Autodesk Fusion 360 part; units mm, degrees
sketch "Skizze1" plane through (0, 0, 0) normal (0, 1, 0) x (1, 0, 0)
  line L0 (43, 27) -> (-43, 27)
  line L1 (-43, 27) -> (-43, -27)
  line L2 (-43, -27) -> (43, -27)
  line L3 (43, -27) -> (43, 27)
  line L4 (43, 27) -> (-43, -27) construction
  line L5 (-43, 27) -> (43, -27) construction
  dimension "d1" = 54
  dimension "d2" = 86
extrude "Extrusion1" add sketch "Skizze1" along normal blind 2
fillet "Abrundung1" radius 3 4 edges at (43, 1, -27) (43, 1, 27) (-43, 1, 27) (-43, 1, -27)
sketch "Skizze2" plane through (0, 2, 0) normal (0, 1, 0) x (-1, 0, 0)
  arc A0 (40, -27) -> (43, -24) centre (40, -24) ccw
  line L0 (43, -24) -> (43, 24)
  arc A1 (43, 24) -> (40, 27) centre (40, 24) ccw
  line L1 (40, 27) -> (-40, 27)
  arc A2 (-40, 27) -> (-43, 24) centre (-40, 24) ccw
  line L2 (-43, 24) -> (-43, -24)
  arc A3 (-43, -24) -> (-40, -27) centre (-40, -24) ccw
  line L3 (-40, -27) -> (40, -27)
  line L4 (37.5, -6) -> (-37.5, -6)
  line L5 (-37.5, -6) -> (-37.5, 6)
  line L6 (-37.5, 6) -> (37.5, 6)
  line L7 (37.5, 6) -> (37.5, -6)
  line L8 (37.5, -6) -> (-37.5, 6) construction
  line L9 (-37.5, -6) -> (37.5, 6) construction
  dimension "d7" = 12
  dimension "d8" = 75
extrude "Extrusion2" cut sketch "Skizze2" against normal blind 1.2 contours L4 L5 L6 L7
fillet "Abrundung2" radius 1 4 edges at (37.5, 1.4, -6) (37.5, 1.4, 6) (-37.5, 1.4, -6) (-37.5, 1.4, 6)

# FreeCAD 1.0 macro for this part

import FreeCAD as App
import Part
import Sketcher
from FreeCAD import Vector
Q = App.Units.Quantity


def edges_at(feature, points):
    """Names of the edges that pass closest to the given points."""
    edges = feature.Shape.Edges
    near = lambda p: min(range(len(edges)), key=lambda i: edges[i].distToShape(Part.Vertex(*p))[0])
    return sorted({f"Edge{near(p) + 1}" for p in points})


def add_polygon(sketch, points):
    """Adds a closed chain of lines whose ends are joined by coincident constraints."""
    first, n = sketch.GeometryCount, len(points)
    for a, b in zip(points, points[1:] + points[:1]):
        sketch.addGeometry(Part.LineSegment(App.Vector(*a, 0), App.Vector(*b, 0)), False)
    for i in range(n):
        sketch.addConstraint(Sketcher.Constraint("Coincident", first + i, 2, first + (i + 1) % n, 1))

doc = App.newDocument("Part")
body = doc.addObject("PartDesign::Body", "Body")

# Sketch on XZ plane
sketch1 = doc.addObject("Sketcher::SketchObject", "Sketch")
body.addObject(sketch1)
sketch1.AttachmentSupport = (doc.XZ_Plane, [""])
sketch1.MapMode = "FlatFace"
add_polygon(sketch1, [(43, 27), (43, -27), (-43, -27), (-43, 27)])  # lines 0-3
sketch1.addConstraint([
    Sketcher.Constraint("Vertical", 0),
    Sketcher.Constraint("Horizontal", 1),
    Sketcher.Constraint("Vertical", 2),
    Sketcher.Constraint("Horizontal", 3),
    Sketcher.Constraint("Symmetric", 0, 2, 2, 2, -1, 1),
    Sketcher.Constraint("DistanceX", 1, 2, 1, 1, Q("86 mm")),
    Sketcher.Constraint("DistanceY", 0, 2, 0, 1, Q("54 mm")),
])
pad1 = doc.addObject("PartDesign::Pad", "Pad")
body.addObject(pad1)
pad1.Profile = sketch1
pad1.Length = 2
pad1.Reversed = True
doc.recompute()

fillet = doc.addObject("PartDesign::Fillet", "Fillet")
body.addObject(fillet)
fillet.Base = (pad1, edges_at(pad1, [
    (43, 1, -27),
    (43, 1, 27),
    (-43, 1, 27),
    (-43, 1, -27),
]))
fillet.Radius = 3

# Sketch on XZ plane
sketch2 = doc.addObject("Sketcher::SketchObject", "Sketch001")
body.addObject(sketch2)
sketch2.AttachmentSupport = (doc.XZ_Plane, [""])
sketch2.MapMode = "FlatFace"
sketch2.AttachmentOffset = App.Placement(Vector(0, 0, -2), App.Rotation())
add_polygon(sketch2, [(38, -6), (-38, -6), (-38, 6), (38, 6)])  # lines 0-3
sketch2.addConstraint([
    Sketcher.Constraint("Horizontal", 0),
    Sketcher.Constraint("Vertical", 1),
    Sketcher.Constraint("Horizontal", 2),
    Sketcher.Constraint("Vertical", 3),
    Sketcher.Constraint("Symmetric", 0, 2, 2, 2, -1, 1),
    Sketcher.Constraint("DistanceX", 0, 2, 0, 1, Q("75 mm")),
    Sketcher.Constraint("DistanceY", 1, 1, 1, 2, Q("12 mm")),
])
pocket1 = doc.addObject("PartDesign::Pocket", "Pocket")
body.addObject(pocket1)
pocket1.Profile = sketch2
pocket1.Length = 1.2
pocket1.Reversed = True
doc.recompute()

fillet2 = doc.addObject("PartDesign::Fillet", "Fillet001")
body.addObject(fillet2)
fillet2.Base = (pocket1, edges_at(pocket1, [
    (37.5, 1.4, -6),
    (37.5, 1.4, 6),
    (-37.5, 1.4, -6),
    (-37.5, 1.4, 6),
]))
fillet2.Radius = 1

doc.recompute()
